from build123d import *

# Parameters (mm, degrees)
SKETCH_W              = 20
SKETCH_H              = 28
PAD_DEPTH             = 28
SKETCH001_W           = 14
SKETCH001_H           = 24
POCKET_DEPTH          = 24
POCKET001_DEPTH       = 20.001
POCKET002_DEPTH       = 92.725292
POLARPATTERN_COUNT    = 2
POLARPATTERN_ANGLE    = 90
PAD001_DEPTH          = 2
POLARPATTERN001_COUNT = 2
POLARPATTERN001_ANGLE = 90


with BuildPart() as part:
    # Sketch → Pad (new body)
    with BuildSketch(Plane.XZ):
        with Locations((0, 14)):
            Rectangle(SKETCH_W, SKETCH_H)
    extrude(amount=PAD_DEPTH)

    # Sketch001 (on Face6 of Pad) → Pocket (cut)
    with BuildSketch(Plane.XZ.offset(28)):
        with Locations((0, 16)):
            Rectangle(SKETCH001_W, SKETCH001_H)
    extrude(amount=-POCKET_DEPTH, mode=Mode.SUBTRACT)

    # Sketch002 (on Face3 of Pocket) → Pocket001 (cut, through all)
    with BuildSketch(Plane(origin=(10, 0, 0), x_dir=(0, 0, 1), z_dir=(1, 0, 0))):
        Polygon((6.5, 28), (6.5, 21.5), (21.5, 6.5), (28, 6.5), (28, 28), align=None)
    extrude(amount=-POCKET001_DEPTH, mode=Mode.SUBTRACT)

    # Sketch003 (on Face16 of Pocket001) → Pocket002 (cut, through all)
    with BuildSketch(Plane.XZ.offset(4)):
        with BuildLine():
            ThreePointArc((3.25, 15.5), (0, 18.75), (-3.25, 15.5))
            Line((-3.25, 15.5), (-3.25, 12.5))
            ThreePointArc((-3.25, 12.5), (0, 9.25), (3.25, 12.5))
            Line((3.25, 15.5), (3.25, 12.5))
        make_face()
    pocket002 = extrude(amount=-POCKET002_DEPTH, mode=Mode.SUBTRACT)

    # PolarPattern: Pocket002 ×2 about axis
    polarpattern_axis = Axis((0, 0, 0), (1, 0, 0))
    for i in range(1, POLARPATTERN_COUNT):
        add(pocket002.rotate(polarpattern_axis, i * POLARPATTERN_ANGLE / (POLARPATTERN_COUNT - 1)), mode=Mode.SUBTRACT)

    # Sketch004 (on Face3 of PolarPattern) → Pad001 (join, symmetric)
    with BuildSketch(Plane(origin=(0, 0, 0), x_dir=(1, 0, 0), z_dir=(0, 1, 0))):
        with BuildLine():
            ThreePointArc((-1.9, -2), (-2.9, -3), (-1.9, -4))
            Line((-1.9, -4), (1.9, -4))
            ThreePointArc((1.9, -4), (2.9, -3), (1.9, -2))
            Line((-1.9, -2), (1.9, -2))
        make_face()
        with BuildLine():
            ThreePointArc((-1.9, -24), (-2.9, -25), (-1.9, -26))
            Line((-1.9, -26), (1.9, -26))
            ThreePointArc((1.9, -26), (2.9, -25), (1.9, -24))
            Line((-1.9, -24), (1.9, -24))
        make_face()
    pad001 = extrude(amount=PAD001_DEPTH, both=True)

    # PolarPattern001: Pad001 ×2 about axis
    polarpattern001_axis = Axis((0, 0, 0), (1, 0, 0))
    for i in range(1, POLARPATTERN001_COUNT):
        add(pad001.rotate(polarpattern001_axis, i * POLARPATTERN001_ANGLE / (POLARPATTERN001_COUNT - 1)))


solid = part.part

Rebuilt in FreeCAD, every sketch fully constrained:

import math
import FreeCAD as App
import Part
import Sketcher
Q = App.Units.Quantity


def add_polygon(sketch, points):
    """Adds a closed chain of lines whose ends are joined by coincident constraints."""
    first, n = sketch.GeometryCount, len(points)
    for a, b in zip(points, points[1:] + points[:1]):
        sketch.addGeometry(Part.LineSegment(App.Vector(*a, 0), App.Vector(*b, 0)), False)
    for i in range(n):
        sketch.addConstraint(Sketcher.Constraint("Coincident", first + i, 2, first + (i + 1) % n, 1))

doc = App.newDocument("Part")
params = doc.addObject("Spreadsheet::Sheet", "Params")
for row, (alias, value) in enumerate([
    ("sketch1_width", "20 mm"),
    ("sketch1_height", "28 mm"),
    ("pad1_length", "28 mm"),
    ("sketch2_width", "14 mm"),
    ("sketch2_height", "24 mm"),
    ("pocket1_length", "24 mm"),
    ("sketch3_width", "6.5 mm"),
    ("sketch3_width2", "21.5 mm"),
    ("sketch4_height", "3 mm"),
    ("sketch4_radius", "3.25 mm"),
    ("sketch5_radius", "1 mm"),
    ("sketch5_width", "3.8 mm"),
    ("pad2_length", "4 mm"),
], start=1):
    params.set(f"A{row}", alias)
    params.set(f"B{row}", "=" + value)
    params.setAlias(f"B{row}", alias)

body = doc.addObject("PartDesign::Body", "Body")

# Sketch on XZ plane
sketch1 = body.newObject("Sketcher::SketchObject", "Sketch")
sketch1.AttachmentSupport = (doc.getObject("XZ_Plane"), [""])
sketch1.MapMode = "FlatFace"
add_polygon(sketch1, [(-10, 28), (-10, 0), (10, 0), (10, 28)])  # lines 0-3
sketch1.addConstraint(Sketcher.Constraint("Vertical", 0))
sketch1.addConstraint(Sketcher.Constraint("Horizontal", 1))
sketch1.addConstraint(Sketcher.Constraint("Vertical", 2))
sketch1.addConstraint(Sketcher.Constraint("Horizontal", 3))
sketch1.addConstraint(Sketcher.Constraint("Symmetric", 0, 2, 1, 2, -1, 1))
sketch1.addConstraint(Sketcher.Constraint("DistanceX", 1, 1, 1, 2, Q("20 mm")))
sketch1.addConstraint(Sketcher.Constraint("DistanceY", 0, 2, 0, 1, Q("28 mm")))
sketch1.setExpression("Constraints[9]", "Params.sketch1_width")
sketch1.setExpression("Constraints[10]", "Params.sketch1_height")
pad1 = body.newObject("PartDesign::Pad", "Pad")
pad1.Profile = sketch1
pad1.setExpression("Length", "Params.pad1_length")

# Sketch on XZ plane
sketch2 = body.newObject("Sketcher::SketchObject", "Sketch001")
sketch2.AttachmentSupport = (doc.getObject("XZ_Plane"), [""])
sketch2.MapMode = "FlatFace"
sketch2.AttachmentOffset = App.Placement(App.Vector(0, 0, 28), App.Rotation())
add_polygon(sketch2, [(-7, 28), (-7, 4), (7, 4), (7, 28)])  # lines 0-3
sketch2.addConstraint(Sketcher.Constraint("Vertical", 0))
sketch2.addConstraint(Sketcher.Constraint("Horizontal", 1))
sketch2.addConstraint(Sketcher.Constraint("Vertical", 2))
sketch2.addConstraint(Sketcher.Constraint("Horizontal", 3))
sketch2.addConstraint(Sketcher.Constraint("DistanceX", 1, 1, 1, 2, Q("14 mm")))
sketch2.addConstraint(Sketcher.Constraint("DistanceY", 0, 2, 0, 1, Q("24 mm")))
sketch2.addConstraint(Sketcher.Constraint("DistanceX", 0, 2, -1, 1, Q("7 mm")))
sketch2.addConstraint(Sketcher.Constraint("DistanceY", -1, 1, 0, 2, Q("4 mm")))
sketch2.setExpression("Constraints[8]", "Params.sketch2_width")
sketch2.setExpression("Constraints[9]", "Params.sketch2_height")
pocket1 = body.newObject("PartDesign::Pocket", "Pocket")
pocket1.Profile = sketch2
pocket1.setExpression("Length", "Params.pocket1_length")

# Sketch on YZ plane
sketch3 = body.newObject("Sketcher::SketchObject", "Sketch002")
sketch3.AttachmentSupport = (doc.getObject("YZ_Plane"), [""])
sketch3.MapMode = "FlatFace"
sketch3.AttachmentOffset = App.Placement(App.Vector(0, 0, 10), App.Rotation())
add_polygon(sketch3, [(-28, 6), (-22, 6), (-6, 22), (-6, 28), (-28, 28)])  # lines 0-4
sketch3.addConstraint(Sketcher.Constraint("Horizontal", 0))
sketch3.addConstraint(Sketcher.Constraint("Vertical", 2))
sketch3.addConstraint(Sketcher.Constraint("Horizontal", 3))
sketch3.addConstraint(Sketcher.Constraint("Vertical", 4))
sketch3.addConstraint(Sketcher.Constraint("Equal", 0, 2))
sketch3.addConstraint(Sketcher.Constraint("Equal", 3, 4))
sketch3.addConstraint(Sketcher.Constraint("DistanceX", 0, 1, 0, 2, Q("6.5 mm")))
sketch3.addConstraint(Sketcher.Constraint("DistanceX", 3, 2, 3, 1, Q("21.5 mm")))
sketch3.addConstraint(Sketcher.Constraint("DistanceY", -1, 1, 2, 2, Q("28 mm")))
sketch3.addConstraint(Sketcher.Constraint("DistanceX", 3, 2, -1, 1, Q("28 mm")))
sketch3.setExpression("Constraints[11]", "Params.sketch3_width")
sketch3.setExpression("Constraints[12]", "Params.sketch3_width2")
pocket2 = body.newObject("PartDesign::Pocket", "Pocket001")
pocket2.Profile = sketch3
pocket2.Type = "ThroughAll"

# Sketch on XZ plane
sketch4 = body.newObject("Sketcher::SketchObject", "Sketch003")
sketch4.AttachmentSupport = (doc.getObject("XZ_Plane"), [""])
sketch4.MapMode = "FlatFace"
sketch4.AttachmentOffset = App.Placement(App.Vector(0, 0, 4), App.Rotation())
sketch4.addGeometry(Part.ArcOfCircle(Part.Circle(App.Vector(0, 15.5, 0), App.Vector(0, 0, 1), 3.2), math.radians(0), math.radians(180)), False)
sketch4.addGeometry(Part.LineSegment(App.Vector(-3.2, 15.5, 0), App.Vector(-3.2, 12.5, 0)), False)
sketch4.addGeometry(Part.ArcOfCircle(Part.Circle(App.Vector(0, 12.5, 0), App.Vector(0, 0, 1), 3.2), math.radians(180), math.radians(360)), False)
sketch4.addGeometry(Part.LineSegment(App.Vector(3.2, 12.5, 0), App.Vector(3.2, 15.5, 0)), False)
sketch4.addConstraint(Sketcher.Constraint("Tangent", 0, 2, 1, 1))
sketch4.addConstraint(Sketcher.Constraint("Tangent", 1, 2, 2, 1))
sketch4.addConstraint(Sketcher.Constraint("Tangent", 2, 2, 3, 1))
sketch4.addConstraint(Sketcher.Constraint("Tangent", 3, 2, 0, 1))
sketch4.addConstraint(Sketcher.Constraint("Vertical", 1))
sketch4.addConstraint(Sketcher.Constraint("Vertical", 3))
sketch4.addConstraint(Sketcher.Constraint("PointOnObject", 0, 3, -2))
sketch4.addConstraint(Sketcher.Constraint("DistanceY", 1, 2, 1, 1, Q("3 mm")))
sketch4.addConstraint(Sketcher.Constraint("Radius", 0, Q("3.25 mm")))
sketch4.addConstraint(Sketcher.Constraint("DistanceY", -1, 1, 0, 3, Q("15.5 mm")))
sketch4.setExpression("Constraints[7]", "Params.sketch4_height")
sketch4.setExpression("Constraints[8]", "Params.sketch4_radius")
pocket3 = body.newObject("PartDesign::Pocket", "Pocket002")
pocket3.Profile = sketch4
pocket3.Type = "ThroughAll"
doc.recompute()

polarpattern = body.newObject("PartDesign::PolarPattern", "PolarPattern")
polarpattern.Originals = [pocket3]
polarpattern.Axis = (doc.getObject("X_Axis"), [""])
polarpattern.Angle = 90
polarpattern.Occurrences = 2
body.Tip = polarpattern

# Sketch on XZ plane
sketch5 = body.newObject("Sketcher::SketchObject", "Sketch004")
sketch5.AttachmentSupport = (doc.getObject("XZ_Plane"), [""])
sketch5.MapMode = "FlatFace"
sketch5.addGeometry(Part.ArcOfCircle(Part.Circle(App.Vector(-1.9, 3, 0), App.Vector(0, 0, 1), 1), math.radians(90), math.radians(270)), False)
sketch5.addGeometry(Part.LineSegment(App.Vector(-1.9, 4, 0), App.Vector(1.9, 4, 0)), False)
sketch5.addGeometry(Part.ArcOfCircle(Part.Circle(App.Vector(1.9, 3, 0), App.Vector(0, 0, 1), 1), math.radians(-90), math.radians(90)), False)
sketch5.addGeometry(Part.LineSegment(App.Vector(1.9, 2, 0), App.Vector(-1.9, 2, 0)), False)
sketch5.addGeometry(Part.ArcOfCircle(Part.Circle(App.Vector(-1.9, 25, 0), App.Vector(0, 0, 1), 1), math.radians(90), math.radians(270)), False)
sketch5.addGeometry(Part.LineSegment(App.Vector(-1.9, 26, 0), App.Vector(1.9, 26, 0)), False)
sketch5.addGeometry(Part.ArcOfCircle(Part.Circle(App.Vector(1.9, 25, 0), App.Vector(0, 0, 1), 1), math.radians(-90), math.radians(90)), False)
sketch5.addGeometry(Part.LineSegment(App.Vector(1.9, 24, 0), App.Vector(-1.9, 24, 0)), False)
sketch5.addConstraint(Sketcher.Constraint("Tangent", 0, 1, 1, 1))
sketch5.addConstraint(Sketcher.Constraint("Tangent", 1, 2, 2, 2))
sketch5.addConstraint(Sketcher.Constraint("Tangent", 2, 1, 3, 1))
sketch5.addConstraint(Sketcher.Constraint("Tangent", 3, 2, 0, 2))
sketch5.addConstraint(Sketcher.Constraint("Tangent", 4, 1, 5, 1))
sketch5.addConstraint(Sketcher.Constraint("Tangent", 5, 2, 6, 2))
sketch5.addConstraint(Sketcher.Constraint("Tangent", 6, 1, 7, 1))
sketch5.addConstraint(Sketcher.Constraint("Tangent", 7, 2, 4, 2))
sketch5.addConstraint(Sketcher.Constraint("Horizontal", 1))
sketch5.addConstraint(Sketcher.Constraint("Horizontal", 3))
sketch5.addConstraint(Sketcher.Constraint("Horizontal", 5))
sketch5.addConstraint(Sketcher.Constraint("Horizontal", 7))
sketch5.addConstraint(Sketcher.Constraint("Equal", 2, 4))
sketch5.addConstraint(Sketcher.Constraint("Vertical", 0, 3, 4, 3))
sketch5.addConstraint(Sketcher.Constraint("Vertical", 2, 3, 6, 3))
sketch5.addConstraint(Sketcher.Constraint("Radius", 0, Q("1 mm")))
sketch5.addConstraint(Sketcher.Constraint("DistanceX", 1, 1, 1, 2, Q("3.8 mm")))
sketch5.addConstraint(Sketcher.Constraint("DistanceY", -1, 1, 0, 3, Q("3 mm")))
sketch5.addConstraint(Sketcher.Constraint("DistanceY", -1, 1, 4, 3, Q("25 mm")))
sketch5.addConstraint(Sketcher.Constraint("DistanceX", 0, 3, -1, 1, Q("1.9 mm")))
sketch5.setExpression("Constraints[15]", "Params.sketch5_radius")
sketch5.setExpression("Constraints[16]", "Params.sketch5_width")
pad2 = body.newObject("PartDesign::Pad", "Pad001")
pad2.Profile = sketch5
pad2.setExpression("Length", "Params.pad2_length")
pad2.Midplane = True
doc.recompute()

polarpattern2 = body.newObject("PartDesign::PolarPattern", "PolarPattern001")
polarpattern2.Originals = [pad2]
polarpattern2.Axis = (doc.getObject("X_Axis"), [""])
polarpattern2.Angle = 90
polarpattern2.Occurrences = 2
body.Tip = polarpattern2

doc.recompute()
